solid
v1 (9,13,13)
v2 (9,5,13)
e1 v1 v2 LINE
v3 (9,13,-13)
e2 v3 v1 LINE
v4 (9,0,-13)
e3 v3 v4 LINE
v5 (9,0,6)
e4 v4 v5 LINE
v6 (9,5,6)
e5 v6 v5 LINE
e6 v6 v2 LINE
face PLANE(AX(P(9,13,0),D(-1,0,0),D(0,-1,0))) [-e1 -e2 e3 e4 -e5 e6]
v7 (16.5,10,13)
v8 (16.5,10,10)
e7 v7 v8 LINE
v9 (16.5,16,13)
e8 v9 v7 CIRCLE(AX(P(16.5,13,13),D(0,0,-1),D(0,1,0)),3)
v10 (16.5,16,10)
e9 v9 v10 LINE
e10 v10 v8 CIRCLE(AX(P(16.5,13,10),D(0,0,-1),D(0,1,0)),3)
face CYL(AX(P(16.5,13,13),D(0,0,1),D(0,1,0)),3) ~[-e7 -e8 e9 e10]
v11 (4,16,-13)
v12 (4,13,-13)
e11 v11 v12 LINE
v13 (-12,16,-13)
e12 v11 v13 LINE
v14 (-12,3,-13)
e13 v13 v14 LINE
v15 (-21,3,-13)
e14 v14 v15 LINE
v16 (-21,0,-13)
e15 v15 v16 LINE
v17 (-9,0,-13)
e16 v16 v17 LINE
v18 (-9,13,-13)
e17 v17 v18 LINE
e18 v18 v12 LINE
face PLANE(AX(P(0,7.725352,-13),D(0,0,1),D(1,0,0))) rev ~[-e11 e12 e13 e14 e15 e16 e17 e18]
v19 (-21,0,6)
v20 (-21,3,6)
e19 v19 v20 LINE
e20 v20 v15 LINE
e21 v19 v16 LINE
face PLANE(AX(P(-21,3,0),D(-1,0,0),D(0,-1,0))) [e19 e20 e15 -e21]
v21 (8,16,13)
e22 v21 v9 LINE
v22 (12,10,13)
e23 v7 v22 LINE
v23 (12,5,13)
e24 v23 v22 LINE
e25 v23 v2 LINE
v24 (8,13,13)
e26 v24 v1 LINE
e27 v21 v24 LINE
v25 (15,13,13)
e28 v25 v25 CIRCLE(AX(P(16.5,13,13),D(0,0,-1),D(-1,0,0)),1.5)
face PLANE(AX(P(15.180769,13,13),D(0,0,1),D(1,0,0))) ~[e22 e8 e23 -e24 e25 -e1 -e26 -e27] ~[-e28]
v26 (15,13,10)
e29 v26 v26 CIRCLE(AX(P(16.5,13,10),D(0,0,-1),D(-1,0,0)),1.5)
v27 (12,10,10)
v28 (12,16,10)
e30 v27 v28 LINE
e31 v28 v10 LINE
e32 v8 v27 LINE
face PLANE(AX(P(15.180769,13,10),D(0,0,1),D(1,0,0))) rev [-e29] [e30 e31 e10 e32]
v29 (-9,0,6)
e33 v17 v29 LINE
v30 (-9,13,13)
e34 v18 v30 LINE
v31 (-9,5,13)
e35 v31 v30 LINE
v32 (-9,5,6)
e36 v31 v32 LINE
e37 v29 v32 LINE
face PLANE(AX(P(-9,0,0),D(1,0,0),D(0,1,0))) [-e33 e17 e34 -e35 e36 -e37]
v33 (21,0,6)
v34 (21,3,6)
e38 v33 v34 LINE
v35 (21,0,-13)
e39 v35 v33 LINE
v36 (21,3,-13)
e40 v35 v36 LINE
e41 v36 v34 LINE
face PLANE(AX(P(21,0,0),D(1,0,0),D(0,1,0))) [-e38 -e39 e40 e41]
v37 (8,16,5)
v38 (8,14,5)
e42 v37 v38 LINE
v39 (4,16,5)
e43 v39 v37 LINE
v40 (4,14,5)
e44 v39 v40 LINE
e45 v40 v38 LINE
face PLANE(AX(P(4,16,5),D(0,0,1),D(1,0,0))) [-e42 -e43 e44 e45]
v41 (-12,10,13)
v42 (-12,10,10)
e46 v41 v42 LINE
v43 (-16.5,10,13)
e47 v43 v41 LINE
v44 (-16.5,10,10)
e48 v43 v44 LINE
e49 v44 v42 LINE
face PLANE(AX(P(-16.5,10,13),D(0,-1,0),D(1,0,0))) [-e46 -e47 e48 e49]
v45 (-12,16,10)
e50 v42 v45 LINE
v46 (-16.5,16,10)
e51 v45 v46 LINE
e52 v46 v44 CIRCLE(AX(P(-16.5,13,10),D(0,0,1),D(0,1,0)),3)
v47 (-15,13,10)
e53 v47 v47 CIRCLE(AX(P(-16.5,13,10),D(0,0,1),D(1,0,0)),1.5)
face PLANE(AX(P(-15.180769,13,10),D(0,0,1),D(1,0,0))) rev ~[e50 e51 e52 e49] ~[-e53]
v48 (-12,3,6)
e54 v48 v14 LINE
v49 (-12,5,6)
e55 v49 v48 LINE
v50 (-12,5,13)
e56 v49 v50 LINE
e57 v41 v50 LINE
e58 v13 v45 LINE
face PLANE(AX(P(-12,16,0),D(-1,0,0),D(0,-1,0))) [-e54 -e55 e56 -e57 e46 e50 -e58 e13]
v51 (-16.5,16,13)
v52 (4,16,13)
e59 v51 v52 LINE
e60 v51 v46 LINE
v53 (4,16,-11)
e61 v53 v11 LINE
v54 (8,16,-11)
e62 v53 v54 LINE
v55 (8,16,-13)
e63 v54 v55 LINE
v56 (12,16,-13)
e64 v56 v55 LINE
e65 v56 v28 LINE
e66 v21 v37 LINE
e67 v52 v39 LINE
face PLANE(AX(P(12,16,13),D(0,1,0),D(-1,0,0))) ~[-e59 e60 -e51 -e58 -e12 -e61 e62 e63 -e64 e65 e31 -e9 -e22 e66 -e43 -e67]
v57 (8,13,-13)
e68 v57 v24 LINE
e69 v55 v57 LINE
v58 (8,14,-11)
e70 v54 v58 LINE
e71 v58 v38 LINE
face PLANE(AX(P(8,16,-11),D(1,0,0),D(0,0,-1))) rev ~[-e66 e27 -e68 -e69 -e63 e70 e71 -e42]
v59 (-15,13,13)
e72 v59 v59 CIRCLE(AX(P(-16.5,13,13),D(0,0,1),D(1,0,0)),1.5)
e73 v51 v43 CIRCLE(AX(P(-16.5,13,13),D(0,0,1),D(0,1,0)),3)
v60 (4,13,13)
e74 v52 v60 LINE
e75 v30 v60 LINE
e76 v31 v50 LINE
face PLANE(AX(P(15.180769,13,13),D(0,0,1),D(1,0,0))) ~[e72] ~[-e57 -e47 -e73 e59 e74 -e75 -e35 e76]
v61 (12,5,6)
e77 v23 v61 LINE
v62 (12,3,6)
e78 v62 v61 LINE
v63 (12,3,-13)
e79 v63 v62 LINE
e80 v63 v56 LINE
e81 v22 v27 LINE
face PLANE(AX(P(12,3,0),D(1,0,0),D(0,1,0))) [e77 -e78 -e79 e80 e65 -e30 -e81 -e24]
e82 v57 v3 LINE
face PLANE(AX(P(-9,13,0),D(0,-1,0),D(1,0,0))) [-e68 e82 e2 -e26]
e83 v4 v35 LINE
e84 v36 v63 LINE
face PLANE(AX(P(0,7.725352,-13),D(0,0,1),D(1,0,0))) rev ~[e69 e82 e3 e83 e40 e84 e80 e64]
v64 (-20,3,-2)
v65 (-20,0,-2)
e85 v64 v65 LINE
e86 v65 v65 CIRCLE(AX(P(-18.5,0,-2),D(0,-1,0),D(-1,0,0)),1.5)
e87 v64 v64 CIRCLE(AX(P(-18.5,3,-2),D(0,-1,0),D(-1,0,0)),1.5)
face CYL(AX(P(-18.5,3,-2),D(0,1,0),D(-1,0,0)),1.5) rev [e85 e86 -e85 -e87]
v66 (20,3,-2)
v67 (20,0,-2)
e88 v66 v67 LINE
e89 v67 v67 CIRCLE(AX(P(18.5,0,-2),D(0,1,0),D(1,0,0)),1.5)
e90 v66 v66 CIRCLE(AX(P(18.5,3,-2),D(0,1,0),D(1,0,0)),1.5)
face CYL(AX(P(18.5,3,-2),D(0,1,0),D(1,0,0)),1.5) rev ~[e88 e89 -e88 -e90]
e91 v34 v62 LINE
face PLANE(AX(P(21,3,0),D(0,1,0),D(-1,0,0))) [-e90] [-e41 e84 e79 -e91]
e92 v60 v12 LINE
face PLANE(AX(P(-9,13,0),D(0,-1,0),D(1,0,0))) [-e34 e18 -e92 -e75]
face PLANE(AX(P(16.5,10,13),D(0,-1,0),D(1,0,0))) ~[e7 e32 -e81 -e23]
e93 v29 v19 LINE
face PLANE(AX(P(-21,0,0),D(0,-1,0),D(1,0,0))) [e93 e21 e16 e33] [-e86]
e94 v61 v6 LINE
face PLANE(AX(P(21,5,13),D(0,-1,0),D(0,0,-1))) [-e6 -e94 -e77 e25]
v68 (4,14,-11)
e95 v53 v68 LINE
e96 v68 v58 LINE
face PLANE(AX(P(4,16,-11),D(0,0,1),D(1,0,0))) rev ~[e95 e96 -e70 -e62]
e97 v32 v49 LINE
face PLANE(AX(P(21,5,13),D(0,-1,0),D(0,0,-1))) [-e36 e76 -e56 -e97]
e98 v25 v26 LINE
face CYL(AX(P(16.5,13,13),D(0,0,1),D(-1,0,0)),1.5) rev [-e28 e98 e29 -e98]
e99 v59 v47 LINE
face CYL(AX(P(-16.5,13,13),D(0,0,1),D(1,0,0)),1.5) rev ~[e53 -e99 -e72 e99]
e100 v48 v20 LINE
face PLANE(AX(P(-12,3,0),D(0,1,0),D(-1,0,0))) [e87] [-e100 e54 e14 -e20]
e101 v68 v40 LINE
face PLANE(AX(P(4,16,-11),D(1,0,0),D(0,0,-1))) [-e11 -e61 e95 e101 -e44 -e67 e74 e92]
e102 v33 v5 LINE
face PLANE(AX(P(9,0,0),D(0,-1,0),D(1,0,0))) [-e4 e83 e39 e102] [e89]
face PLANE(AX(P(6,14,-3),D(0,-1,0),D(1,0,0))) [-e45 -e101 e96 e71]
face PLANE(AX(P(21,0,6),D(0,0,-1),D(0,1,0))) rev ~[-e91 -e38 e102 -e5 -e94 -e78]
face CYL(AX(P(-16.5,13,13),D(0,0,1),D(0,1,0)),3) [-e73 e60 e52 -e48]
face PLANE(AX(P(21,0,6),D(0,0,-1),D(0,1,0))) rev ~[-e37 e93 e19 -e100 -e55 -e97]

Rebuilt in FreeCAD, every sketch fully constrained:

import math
import FreeCAD as App
import Part
import Sketcher

V = App.Vector
Q = App.Units.Quantity

doc = App.newDocument("Part")
body = doc.addObject("PartDesign::Body", "Body")

# Sketch on XY plane
sketch1 = body.newObject("Sketcher::SketchObject", "Sketch")
sketch1.AttachmentSupport = (doc.getObject("XY_Plane"), [""])
sketch1.MapMode = "FlatFace"
sketch1.addGeometry([
    Part.LineSegment(V(-21, 0, 0), V(-9, 0, 0)),  # 0
    Part.LineSegment(V(-9, 0, 0), V(-9, 13, 0)),  # 1
    Part.LineSegment(V(-9, 13, 0), V(9, 13, 0)),  # 2
    Part.LineSegment(V(9, 13, 0), V(9, 0, 0)),  # 3
    Part.LineSegment(V(9, 0, 0), V(21, 0, 0)),  # 4
    Part.LineSegment(V(21, 0, 0), V(21, 3, 0)),  # 5
    Part.LineSegment(V(21, 3, 0), V(12, 3, 0)),  # 6
    Part.LineSegment(V(12, 3, 0), V(12, 16, 0)),  # 7
    Part.LineSegment(V(12, 16, 0), V(-12, 16, 0)),  # 8
    Part.LineSegment(V(-12, 16, 0), V(-12, 3, 0)),  # 9
    Part.LineSegment(V(-12, 3, 0), V(-21, 3, 0)),  # 10
    Part.LineSegment(V(-21, 3, 0), V(-21, 0, 0)),  # 11
], False)
sketch1.addConstraint([
    Sketcher.Constraint("Coincident", 0, 2, 1, 1),
    Sketcher.Constraint("Coincident", 1, 2, 2, 1),
    Sketcher.Constraint("Coincident", 2, 2, 3, 1),
    Sketcher.Constraint("Coincident", 3, 2, 4, 1),
    Sketcher.Constraint("Coincident", 4, 2, 5, 1),
    Sketcher.Constraint("Coincident", 5, 2, 6, 1),
    Sketcher.Constraint("Coincident", 6, 2, 7, 1),
    Sketcher.Constraint("Coincident", 7, 2, 8, 1),
    Sketcher.Constraint("Coincident", 8, 2, 9, 1),
    Sketcher.Constraint("Coincident", 9, 2, 10, 1),
    Sketcher.Constraint("Coincident", 10, 2, 11, 1),
    Sketcher.Constraint("Coincident", 11, 2, 0, 1),
    Sketcher.Constraint("Horizontal", 0),
    Sketcher.Constraint("Vertical", 1),
    Sketcher.Constraint("Horizontal", 2),
    Sketcher.Constraint("Vertical", 3),
    Sketcher.Constraint("Horizontal", 4),
    Sketcher.Constraint("Vertical", 5),
    Sketcher.Constraint("Horizontal", 6),
    Sketcher.Constraint("Vertical", 7),
    Sketcher.Constraint("Horizontal", 8),
    Sketcher.Constraint("Vertical", 9),
    Sketcher.Constraint("Horizontal", 10),
    Sketcher.Constraint("Vertical", 11),
    Sketcher.Constraint("Symmetric", 0, 2, 3, 2, -1, 1),
    Sketcher.Constraint("Symmetric", 6, 2, 9, 2, -2),
    Sketcher.Constraint("Symmetric", 4, 2, 11, 2, -2),
    Sketcher.Constraint("Equal", 3, 7),
    Sketcher.Constraint("DistanceX", 0, 1, 0, 2, Q("12 mm")),
    Sketcher.Constraint("DistanceX", 2, 1, 2, 2, Q("18 mm")),
    Sketcher.Constraint("DistanceX", 6, 2, 6, 1, Q("9 mm")),
    Sketcher.Constraint("DistanceY", 1, 1, 1, 2, Q("13 mm")),
    Sketcher.Constraint("DistanceY", 5, 1, 5, 2, Q("3 mm")),
])
pad1 = body.newObject("PartDesign::Pad", "Pad")
pad1.Profile = sketch1
pad1.Length = 26
pad1.Midplane = True

# Sketch on XY plane
sketch2 = body.newObject("Sketcher::SketchObject", "Sketch001")
sketch2.AttachmentSupport = (doc.getObject("XY_Plane"), [""])
sketch2.MapMode = "FlatFace"
sketch2.AttachmentOffset = App.Placement(V(0, 0, 13), App.Rotation())
sketch2.addGeometry([
    Part.LineSegment(V(-12, 16, 0), V(-16.5, 16, 0)),
    Part.ArcOfCircle(Part.Circle(V(-16.5, 13, 0), V(0, 0, 1), 3), math.radians(90), math.radians(270)),
    Part.LineSegment(V(-16.5, 10, 0), V(-12, 10, 0)),
    Part.LineSegment(V(-12, 10, 0), V(-12, 16, 0)),
], False)
sketch2.addConstraint([
    Sketcher.Constraint("Tangent", 0, 2, 1, 1),
    Sketcher.Constraint("Tangent", 1, 2, 2, 1),
    Sketcher.Constraint("Coincident", 2, 2, 3, 1),
    Sketcher.Constraint("Coincident", 3, 2, 0, 1),
    Sketcher.Constraint("Horizontal", 0),
    Sketcher.Constraint("Horizontal", 2),
    Sketcher.Constraint("Vertical", 3),
    Sketcher.Constraint("Radius", 1, Q("3 mm")),
    Sketcher.Constraint("DistanceX", 0, 2, 0, 1, Q("4.5 mm")),
    Sketcher.Constraint("DistanceY", -1, 1, 1, 3, Q("13 mm")),
    Sketcher.Constraint("DistanceX", 2, 2, -1, 1, Q("12 mm")),
])
pad2 = body.newObject("PartDesign::Pad", "Pad001")
pad2.Profile = sketch2
pad2.Length = 3
pad2.Reversed = True

# Sketch on XY plane
sketch3 = body.newObject("Sketcher::SketchObject", "Sketch002")
sketch3.AttachmentSupport = (doc.getObject("XY_Plane"), [""])
sketch3.MapMode = "FlatFace"
sketch3.AttachmentOffset = App.Placement(V(0, 0, 13), App.Rotation())
sketch3.addGeometry(Part.Circle(V(-16.5, 13, 0), V(0, 0, 1), 1.5), False)
sketch3.addConstraint([
    Sketcher.Constraint("Diameter", 0, Q("3 mm")),
    Sketcher.Constraint("DistanceY", -1, 1, 0, 3, Q("13 mm")),
    Sketcher.Constraint("DistanceX", 0, 3, -1, 1, Q("16.5 mm")),
])
pocket1 = body.newObject("PartDesign::Pocket", "Pocket")
pocket1.Profile = sketch3
pocket1.Length = 3
doc.recompute()

mirrored = body.newObject("PartDesign::Mirrored", "Mirrored")
mirrored.Originals = [pad2, pocket1]
mirrored.MirrorPlane = (doc.getObject("YZ_Plane"), [""])
body.Tip = mirrored

# Sketch on XZ plane
sketch4 = body.newObject("Sketcher::SketchObject", "Sketch003")
sketch4.AttachmentSupport = (doc.getObject("XZ_Plane"), [""])
sketch4.MapMode = "FlatFace"
sketch4.AttachmentOffset = App.Placement(V(0, 0, -16), App.Rotation())
sketch4.addGeometry([
    Part.LineSegment(V(4, 5, 0), V(4, 13, 0)),
    Part.LineSegment(V(4, 13, 0), V(8, 13, 0)),
    Part.LineSegment(V(8, 13, 0), V(8, 5, 0)),
    Part.LineSegment(V(8, 5, 0), V(4, 5, 0)),
], False)
sketch4.addConstraint([
    Sketcher.Constraint("Coincident", 0, 2, 1, 1),
    Sketcher.Constraint("Coincident", 1, 2, 2, 1),
    Sketcher.Constraint("Coincident", 2, 2, 3, 1),
    Sketcher.Constraint("Coincident", 3, 2, 0, 1),
    Sketcher.Constraint("Vertical", 0),
    Sketcher.Constraint("Horizontal", 1),
    Sketcher.Constraint("Vertical", 2),
    Sketcher.Constraint("Horizontal", 3),
    Sketcher.Constraint("DistanceX", 1, 1, 1, 2, Q("4 mm")),
    Sketcher.Constraint("DistanceY", 0, 1, 0, 2, Q("8 mm")),
    Sketcher.Constraint("DistanceX", -1, 1, 0, 2, Q("4 mm")),
    Sketcher.Constraint("DistanceY", -1, 1, 0, 2, Q("13 mm")),
])
pocket2 = body.newObject("PartDesign::Pocket", "Pocket001")
pocket2.Profile = sketch4
pocket2.Type = "UpToFirst"
pocket2.Reversed = True

# Sketch on XZ plane
sketch5 = body.newObject("Sketcher::SketchObject", "Sketch004")
sketch5.AttachmentSupport = (doc.getObject("XZ_Plane"), [""])
sketch5.MapMode = "FlatFace"
sketch5.AttachmentOffset = App.Placement(V(0, 0, -16), App.Rotation())
sketch5.addGeometry([
    Part.LineSegment(V(4, -13, 0), V(4, -11, 0)),
    Part.LineSegment(V(4, -11, 0), V(8, -11, 0)),
    Part.LineSegment(V(8, -11, 0), V(8, -13, 0)),
    Part.LineSegment(V(8, -13, 0), V(4, -13, 0)),
], False)
sketch5.addConstraint([
    Sketcher.Constraint("Coincident", 0, 2, 1, 1),
    Sketcher.Constraint("Coincident", 1, 2, 2, 1),
    Sketcher.Constraint("Coincident", 2, 2, 3, 1),
    Sketcher.Constraint("Coincident", 3, 2, 0, 1),
    Sketcher.Constraint("Vertical", 0),
    Sketcher.Constraint("Horizontal", 1),
    Sketcher.Constraint("Vertical", 2),
    Sketcher.Constraint("Horizontal", 3),
    Sketcher.Constraint("DistanceX", 1, 1, 1, 2, Q("4 mm")),
    Sketcher.Constraint("DistanceY", 0, 1, 0, 2, Q("2 mm")),
    Sketcher.Constraint("DistanceX", -1, 1, 0, 2, Q("4 mm")),
    Sketcher.Constraint("DistanceY", 0, 2, -1, 1, Q("11 mm")),
])
pocket3 = body.newObject("PartDesign::Pocket", "Pocket002")
pocket3.Profile = sketch5
pocket3.Type = "UpToFirst"
pocket3.Reversed = True

# Sketch on YZ plane
sketch6 = body.newObject("Sketcher::SketchObject", "Sketch005")
sketch6.AttachmentSupport = (doc.getObject("YZ_Plane"), [""])
sketch6.MapMode = "FlatFace"
sketch6.AttachmentOffset = App.Placement(V(0, 0, 21), App.Rotation())
sketch6.addGeometry([
    Part.LineSegment(V(5, 13, 0), V(0, 13, 0)),
    Part.LineSegment(V(0, 13, 0), V(0, 6, 0)),
    Part.LineSegment(V(0, 6, 0), V(5, 6, 0)),
    Part.LineSegment(V(5, 6, 0), V(5, 13, 0)),
], False)
sketch6.addConstraint([
    Sketcher.Constraint("Coincident", 0, 2, 1, 1),
    Sketcher.Constraint("Coincident", 1, 2, 2, 1),
    Sketcher.Constraint("Coincident", 2, 2, 3, 1),
    Sketcher.Constraint("Coincident", 3, 2, 0, 1),
    Sketcher.Constraint("Horizontal", 0),
    Sketcher.Constraint("Vertical", 1),
    Sketcher.Constraint("Horizontal", 2),
    Sketcher.Constraint("Vertical", 3),
    Sketcher.Constraint("PointOnObject", 0, 2, -2),
    Sketcher.Constraint("DistanceX", 0, 2, 0, 1, Q("5 mm")),
    Sketcher.Constraint("DistanceY", 1, 2, 1, 1, Q("7 mm")),
    Sketcher.Constraint("DistanceY", -1, 1, 0, 2, Q("13 mm")),
])
pocket4 = body.newObject("PartDesign::Pocket", "Pocket003")
pocket4.Profile = sketch6
pocket4.Length = 42

# Sketch on XZ plane
sketch7 = body.newObject("Sketcher::SketchObject", "Sketch006")
sketch7.AttachmentSupport = (doc.getObject("XZ_Plane"), [""])
sketch7.MapMode = "FlatFace"
sketch7.AttachmentOffset = App.Placement(V(0, 0, -3), App.Rotation())
sketch7.addGeometry(Part.Circle(V(18.5, -2, 0), V(0, 0, 1), 1.5), False)
sketch7.addConstraint([
    Sketcher.Constraint("Diameter", 0, Q("3 mm")),
    Sketcher.Constraint("DistanceY", 0, 3, -1, 1, Q("2 mm")),
    Sketcher.Constraint("DistanceX", -1, 1, 0, 3, Q("18.5 mm")),
])
pocket5 = body.newObject("PartDesign::Pocket", "Pocket004")
pocket5.Profile = sketch7
pocket5.Length = 3
pocket5.Reversed = True
doc.recompute()

mirrored2 = body.newObject("PartDesign::Mirrored", "Mirrored001")
mirrored2.Originals = [pocket5]
mirrored2.MirrorPlane = (doc.getObject("YZ_Plane"), [""])
body.Tip = mirrored2

# Sketch on XZ plane
sketch8 = body.newObject("Sketcher::SketchObject", "Sketch007")
sketch8.AttachmentSupport = (doc.getObject("XZ_Plane"), [""])
sketch8.MapMode = "FlatFace"
sketch8.AttachmentOffset = App.Placement(V(0, 0, -13), App.Rotation())
sketch8.addGeometry([
    Part.LineSegment(V(4, 5, 0), V(4, -11, 0)),
    Part.LineSegment(V(4, -11, 0), V(8, -11, 0)),
    Part.LineSegment(V(8, -11, 0), V(8, 5, 0)),
    Part.LineSegment(V(8, 5, 0), V(4, 5, 0)),
], False)
sketch8.addConstraint([
    Sketcher.Constraint("Coincident", 0, 2, 1, 1),
    Sketcher.Constraint("Coincident", 1, 2, 2, 1),
    Sketcher.Constraint("Coincident", 2, 2, 3, 1),
    Sketcher.Constraint("Coincident", 3, 2, 0, 1),
    Sketcher.Constraint("Vertical", 0),
    Sketcher.Constraint("Horizontal", 1),
    Sketcher.Constraint("Vertical", 2),
    Sketcher.Constraint("Horizontal", 3),
    Sketcher.Constraint("DistanceX", 1, 1, 1, 2, Q("4 mm")),
    Sketcher.Constraint("DistanceY", 0, 2, 0, 1, Q("16 mm")),
    Sketcher.Constraint("DistanceX", -1, 1, 0, 2, Q("4 mm")),
    Sketcher.Constraint("DistanceY", 0, 2, -1, 1, Q("11 mm")),
])
pocket6 = body.newObject("PartDesign::Pocket", "Pocket005")
pocket6.Profile = sketch8
pocket6.Length = 1

doc.recompute()
